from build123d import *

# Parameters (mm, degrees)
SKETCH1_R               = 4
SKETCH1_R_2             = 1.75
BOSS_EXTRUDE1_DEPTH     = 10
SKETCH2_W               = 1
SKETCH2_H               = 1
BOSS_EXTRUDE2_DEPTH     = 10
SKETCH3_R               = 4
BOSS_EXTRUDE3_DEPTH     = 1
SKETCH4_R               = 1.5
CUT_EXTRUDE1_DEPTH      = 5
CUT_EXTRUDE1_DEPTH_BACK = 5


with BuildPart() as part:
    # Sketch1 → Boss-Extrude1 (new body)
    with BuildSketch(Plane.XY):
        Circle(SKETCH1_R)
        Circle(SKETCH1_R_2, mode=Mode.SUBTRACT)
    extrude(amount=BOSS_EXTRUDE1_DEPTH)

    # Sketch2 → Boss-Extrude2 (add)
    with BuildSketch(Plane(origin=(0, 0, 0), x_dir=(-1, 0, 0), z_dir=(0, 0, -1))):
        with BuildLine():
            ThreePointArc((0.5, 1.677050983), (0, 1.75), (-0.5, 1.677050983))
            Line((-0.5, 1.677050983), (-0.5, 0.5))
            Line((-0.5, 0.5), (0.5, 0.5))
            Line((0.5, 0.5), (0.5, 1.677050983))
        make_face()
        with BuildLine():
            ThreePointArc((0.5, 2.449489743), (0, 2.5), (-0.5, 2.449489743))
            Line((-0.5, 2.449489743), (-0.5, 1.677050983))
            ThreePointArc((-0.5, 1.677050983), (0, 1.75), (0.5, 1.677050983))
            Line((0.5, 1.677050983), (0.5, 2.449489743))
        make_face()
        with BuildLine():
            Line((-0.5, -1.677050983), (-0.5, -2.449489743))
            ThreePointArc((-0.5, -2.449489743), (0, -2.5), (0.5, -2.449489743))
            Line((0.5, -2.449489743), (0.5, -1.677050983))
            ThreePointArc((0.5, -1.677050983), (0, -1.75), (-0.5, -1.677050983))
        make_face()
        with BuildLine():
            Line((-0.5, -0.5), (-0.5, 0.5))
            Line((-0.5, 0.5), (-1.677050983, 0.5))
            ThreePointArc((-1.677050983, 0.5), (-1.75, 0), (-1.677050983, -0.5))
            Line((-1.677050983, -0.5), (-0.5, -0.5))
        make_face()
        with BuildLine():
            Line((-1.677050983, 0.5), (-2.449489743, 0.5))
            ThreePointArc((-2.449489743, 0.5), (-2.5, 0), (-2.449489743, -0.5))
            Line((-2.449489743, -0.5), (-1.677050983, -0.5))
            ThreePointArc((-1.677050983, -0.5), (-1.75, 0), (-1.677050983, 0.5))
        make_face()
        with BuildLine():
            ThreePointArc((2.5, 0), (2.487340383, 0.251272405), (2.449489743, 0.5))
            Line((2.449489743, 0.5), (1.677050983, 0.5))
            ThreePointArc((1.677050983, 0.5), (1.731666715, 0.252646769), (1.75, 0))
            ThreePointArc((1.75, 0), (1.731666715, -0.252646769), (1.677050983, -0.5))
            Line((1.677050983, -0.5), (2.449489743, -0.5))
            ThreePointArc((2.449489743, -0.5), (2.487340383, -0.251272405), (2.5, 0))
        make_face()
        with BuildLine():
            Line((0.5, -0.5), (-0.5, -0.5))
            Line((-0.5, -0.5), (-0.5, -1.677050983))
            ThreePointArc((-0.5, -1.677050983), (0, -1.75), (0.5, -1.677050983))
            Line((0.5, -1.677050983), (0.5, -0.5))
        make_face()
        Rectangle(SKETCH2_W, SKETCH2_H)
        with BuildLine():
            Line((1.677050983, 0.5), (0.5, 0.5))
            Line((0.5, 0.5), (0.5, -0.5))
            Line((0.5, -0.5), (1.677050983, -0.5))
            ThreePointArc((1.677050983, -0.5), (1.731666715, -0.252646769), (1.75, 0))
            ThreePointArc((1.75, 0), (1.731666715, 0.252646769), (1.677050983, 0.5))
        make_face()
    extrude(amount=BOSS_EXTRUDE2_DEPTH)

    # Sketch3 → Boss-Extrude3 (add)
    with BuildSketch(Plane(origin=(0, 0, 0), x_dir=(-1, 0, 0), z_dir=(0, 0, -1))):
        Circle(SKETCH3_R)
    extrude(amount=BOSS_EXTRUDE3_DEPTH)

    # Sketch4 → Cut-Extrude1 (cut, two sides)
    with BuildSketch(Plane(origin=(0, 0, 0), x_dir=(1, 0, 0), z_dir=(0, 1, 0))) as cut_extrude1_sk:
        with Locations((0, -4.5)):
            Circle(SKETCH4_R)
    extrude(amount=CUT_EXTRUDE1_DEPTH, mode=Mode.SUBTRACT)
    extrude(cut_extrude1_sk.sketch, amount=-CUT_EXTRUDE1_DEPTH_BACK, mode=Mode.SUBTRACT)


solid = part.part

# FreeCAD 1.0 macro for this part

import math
import FreeCAD as App
import Part
import Sketcher

V = App.Vector

doc = App.newDocument("Part")
body = doc.addObject("PartDesign::Body", "Body")

# Sketch on XY plane
sketch1 = doc.addObject("Sketcher::SketchObject", "Sketch")
body.addObject(sketch1)
sketch1.AttachmentSupport = (doc.XY_Plane, [""])
sketch1.MapMode = "FlatFace"
sketch1.addGeometry([
    Part.Circle(V(0, 0, 0), V(0, 0, 1), 4),
    Part.Circle(V(0, 0, 0), V(0, 0, 1), 1.8),
], False)
sketch1.addConstraint([
    Sketcher.Constraint("Coincident", 0, 3, -1, 1),
    Sketcher.Constraint("Coincident", 1, 3, -1, 1),
    Sketcher.Constraint("Diameter", 0, 8.0),
    Sketcher.Constraint("Diameter", 1, 3.5),
])
pad1 = doc.addObject("PartDesign::Pad", "Pad")
body.addObject(pad1)
pad1.Profile = sketch1
pad1.Length = 10

# Sketch on XY plane
sketch2 = doc.addObject("Sketcher::SketchObject", "Sketch001")
body.addObject(sketch2)
sketch2.AttachmentSupport = (doc.XY_Plane, [""])
sketch2.MapMode = "FlatFace"
sketch2.addGeometry([
    Part.LineSegment(V(-0.5, 0.5, 0), V(-0.5, 2.4, 0)),  # 0
    Part.ArcOfCircle(Part.Circle(V(0, 0, 0), V(0, 0, 1), 2.5), math.radians(78), math.radians(102)),  # 1
    Part.LineSegment(V(0.5, 2.4, 0), V(0.5, 0.5, 0)),  # 2
    Part.LineSegment(V(0.5, 0.5, 0), V(2.4, 0.5, 0)),  # 3
    Part.ArcOfCircle(Part.Circle(V(0, 0, 0), V(0, 0, 1), 2.5), math.radians(-12), math.radians(12)),  # 4
    Part.LineSegment(V(2.4, -0.5, 0), V(0.5, -0.5, 0)),  # 5
    Part.LineSegment(V(0.5, -0.5, 0), V(0.5, -2.4, 0)),  # 6
    Part.ArcOfCircle(Part.Circle(V(0, 0, 0), V(0, 0, 1), 2.5), math.radians(-102), math.radians(-78)),  # 7
    Part.LineSegment(V(-0.5, -2.4, 0), V(-0.5, -0.5, 0)),  # 8
    Part.LineSegment(V(-0.5, -0.5, 0), V(-2.4, -0.5, 0)),  # 9
    Part.ArcOfCircle(Part.Circle(V(0, 0, 0), V(0, 0, 1), 2.5), math.radians(180), math.radians(191.54)),  # 10
    Part.ArcOfCircle(Part.Circle(V(0, 0, 0), V(0, 0, 1), 2.5), math.radians(168.46), math.radians(180)),  # 11
    Part.LineSegment(V(-2.4, 0.5, 0), V(-0.5, 0.5, 0)),  # 12
], False)
sketch2.addConstraint([
    Sketcher.Constraint("Coincident", 0, 2, 1, 2),
    Sketcher.Constraint("Coincident", 1, 1, 2, 1),
    Sketcher.Constraint("Coincident", 2, 2, 3, 1),
    Sketcher.Constraint("Coincident", 3, 2, 4, 2),
    Sketcher.Constraint("Coincident", 4, 1, 5, 1),
    Sketcher.Constraint("Coincident", 5, 2, 6, 1),
    Sketcher.Constraint("Coincident", 6, 2, 7, 2),
    Sketcher.Constraint("Coincident", 7, 1, 8, 1),
    Sketcher.Constraint("Coincident", 8, 2, 9, 1),
    Sketcher.Constraint("Coincident", 9, 2, 10, 2),
    Sketcher.Constraint("Tangent", 10, 1, 11, 2),
    Sketcher.Constraint("Coincident", 11, 1, 12, 1),
    Sketcher.Constraint("Coincident", 12, 2, 0, 1),
    Sketcher.Constraint("Vertical", 0),
    Sketcher.Constraint("Vertical", 2),
    Sketcher.Constraint("Horizontal", 3),
    Sketcher.Constraint("Horizontal", 5),
    Sketcher.Constraint("Vertical", 6),
    Sketcher.Constraint("Vertical", 8),
    Sketcher.Constraint("Horizontal", 9),
    Sketcher.Constraint("Horizontal", 12),
    Sketcher.Constraint("Coincident", 1, 3, -1, 1),
    Sketcher.Constraint("Coincident", 4, 3, -1, 1),
    Sketcher.Constraint("Coincident", 7, 3, -1, 1),
    Sketcher.Constraint("Coincident", 10, 3, -1, 1),
    Sketcher.Constraint("Equal", 1, 4),
    Sketcher.Constraint("Equal", 4, 7),
    Sketcher.Constraint("Equal", 7, 10),
    Sketcher.Constraint("Equal", 10, 11),
    Sketcher.Constraint("Symmetric", 2, 2, 8, 2, -1, 1),
    Sketcher.Constraint("Symmetric", 5, 2, 12, 2, -1, 1),
    Sketcher.Constraint("Symmetric", 5, 2, 8, 2, -2),
    Sketcher.Constraint("PointOnObject", 10, 1, -1),
    Sketcher.Constraint("Equal", 12, 0),
    Sketcher.Constraint("Radius", 1, 2.5),
    Sketcher.Constraint("DistanceX", 0, 2, 1, 1, 1.0),
])
pad2 = doc.addObject("PartDesign::Pad", "Pad001")
body.addObject(pad2)
pad2.Profile = sketch2
pad2.Length = 10
pad2.Reversed = True

# Sketch on XY plane
sketch3 = doc.addObject("Sketcher::SketchObject", "Sketch002")
body.addObject(sketch3)
sketch3.AttachmentSupport = (doc.XY_Plane, [""])
sketch3.MapMode = "FlatFace"
sketch3.addGeometry(Part.Circle(V(0, 0, 0), V(0, 0, 1), 4), False)
sketch3.addConstraint([
    Sketcher.Constraint("Coincident", 0, 3, -1, 1),
    Sketcher.Constraint("Diameter", 0, 8.0),
])
pad3 = doc.addObject("PartDesign::Pad", "Pad002")
body.addObject(pad3)
pad3.Profile = sketch3
pad3.Length = 1
pad3.Reversed = True

# Sketch on XZ plane
sketch4 = doc.addObject("Sketcher::SketchObject", "Sketch003")
body.addObject(sketch4)
sketch4.AttachmentSupport = (doc.XZ_Plane, [""])
sketch4.MapMode = "FlatFace"
sketch4.addGeometry(Part.Circle(V(0, 4.5, 0), V(0, 0, 1), 1.5), False)
sketch4.addConstraint([
    Sketcher.Constraint("PointOnObject", 0, 3, -2),
    Sketcher.Constraint("Diameter", 0, 3.0),
    Sketcher.Constraint("DistanceY", -1, 1, 0, 3, 4.5),
])
pocket1 = doc.addObject("PartDesign::Pocket", "Pocket")
body.addObject(pocket1)
pocket1.Profile = sketch4
pocket1.Type = "ThroughAll"
pocket1.Midplane = True

doc.recompute()
